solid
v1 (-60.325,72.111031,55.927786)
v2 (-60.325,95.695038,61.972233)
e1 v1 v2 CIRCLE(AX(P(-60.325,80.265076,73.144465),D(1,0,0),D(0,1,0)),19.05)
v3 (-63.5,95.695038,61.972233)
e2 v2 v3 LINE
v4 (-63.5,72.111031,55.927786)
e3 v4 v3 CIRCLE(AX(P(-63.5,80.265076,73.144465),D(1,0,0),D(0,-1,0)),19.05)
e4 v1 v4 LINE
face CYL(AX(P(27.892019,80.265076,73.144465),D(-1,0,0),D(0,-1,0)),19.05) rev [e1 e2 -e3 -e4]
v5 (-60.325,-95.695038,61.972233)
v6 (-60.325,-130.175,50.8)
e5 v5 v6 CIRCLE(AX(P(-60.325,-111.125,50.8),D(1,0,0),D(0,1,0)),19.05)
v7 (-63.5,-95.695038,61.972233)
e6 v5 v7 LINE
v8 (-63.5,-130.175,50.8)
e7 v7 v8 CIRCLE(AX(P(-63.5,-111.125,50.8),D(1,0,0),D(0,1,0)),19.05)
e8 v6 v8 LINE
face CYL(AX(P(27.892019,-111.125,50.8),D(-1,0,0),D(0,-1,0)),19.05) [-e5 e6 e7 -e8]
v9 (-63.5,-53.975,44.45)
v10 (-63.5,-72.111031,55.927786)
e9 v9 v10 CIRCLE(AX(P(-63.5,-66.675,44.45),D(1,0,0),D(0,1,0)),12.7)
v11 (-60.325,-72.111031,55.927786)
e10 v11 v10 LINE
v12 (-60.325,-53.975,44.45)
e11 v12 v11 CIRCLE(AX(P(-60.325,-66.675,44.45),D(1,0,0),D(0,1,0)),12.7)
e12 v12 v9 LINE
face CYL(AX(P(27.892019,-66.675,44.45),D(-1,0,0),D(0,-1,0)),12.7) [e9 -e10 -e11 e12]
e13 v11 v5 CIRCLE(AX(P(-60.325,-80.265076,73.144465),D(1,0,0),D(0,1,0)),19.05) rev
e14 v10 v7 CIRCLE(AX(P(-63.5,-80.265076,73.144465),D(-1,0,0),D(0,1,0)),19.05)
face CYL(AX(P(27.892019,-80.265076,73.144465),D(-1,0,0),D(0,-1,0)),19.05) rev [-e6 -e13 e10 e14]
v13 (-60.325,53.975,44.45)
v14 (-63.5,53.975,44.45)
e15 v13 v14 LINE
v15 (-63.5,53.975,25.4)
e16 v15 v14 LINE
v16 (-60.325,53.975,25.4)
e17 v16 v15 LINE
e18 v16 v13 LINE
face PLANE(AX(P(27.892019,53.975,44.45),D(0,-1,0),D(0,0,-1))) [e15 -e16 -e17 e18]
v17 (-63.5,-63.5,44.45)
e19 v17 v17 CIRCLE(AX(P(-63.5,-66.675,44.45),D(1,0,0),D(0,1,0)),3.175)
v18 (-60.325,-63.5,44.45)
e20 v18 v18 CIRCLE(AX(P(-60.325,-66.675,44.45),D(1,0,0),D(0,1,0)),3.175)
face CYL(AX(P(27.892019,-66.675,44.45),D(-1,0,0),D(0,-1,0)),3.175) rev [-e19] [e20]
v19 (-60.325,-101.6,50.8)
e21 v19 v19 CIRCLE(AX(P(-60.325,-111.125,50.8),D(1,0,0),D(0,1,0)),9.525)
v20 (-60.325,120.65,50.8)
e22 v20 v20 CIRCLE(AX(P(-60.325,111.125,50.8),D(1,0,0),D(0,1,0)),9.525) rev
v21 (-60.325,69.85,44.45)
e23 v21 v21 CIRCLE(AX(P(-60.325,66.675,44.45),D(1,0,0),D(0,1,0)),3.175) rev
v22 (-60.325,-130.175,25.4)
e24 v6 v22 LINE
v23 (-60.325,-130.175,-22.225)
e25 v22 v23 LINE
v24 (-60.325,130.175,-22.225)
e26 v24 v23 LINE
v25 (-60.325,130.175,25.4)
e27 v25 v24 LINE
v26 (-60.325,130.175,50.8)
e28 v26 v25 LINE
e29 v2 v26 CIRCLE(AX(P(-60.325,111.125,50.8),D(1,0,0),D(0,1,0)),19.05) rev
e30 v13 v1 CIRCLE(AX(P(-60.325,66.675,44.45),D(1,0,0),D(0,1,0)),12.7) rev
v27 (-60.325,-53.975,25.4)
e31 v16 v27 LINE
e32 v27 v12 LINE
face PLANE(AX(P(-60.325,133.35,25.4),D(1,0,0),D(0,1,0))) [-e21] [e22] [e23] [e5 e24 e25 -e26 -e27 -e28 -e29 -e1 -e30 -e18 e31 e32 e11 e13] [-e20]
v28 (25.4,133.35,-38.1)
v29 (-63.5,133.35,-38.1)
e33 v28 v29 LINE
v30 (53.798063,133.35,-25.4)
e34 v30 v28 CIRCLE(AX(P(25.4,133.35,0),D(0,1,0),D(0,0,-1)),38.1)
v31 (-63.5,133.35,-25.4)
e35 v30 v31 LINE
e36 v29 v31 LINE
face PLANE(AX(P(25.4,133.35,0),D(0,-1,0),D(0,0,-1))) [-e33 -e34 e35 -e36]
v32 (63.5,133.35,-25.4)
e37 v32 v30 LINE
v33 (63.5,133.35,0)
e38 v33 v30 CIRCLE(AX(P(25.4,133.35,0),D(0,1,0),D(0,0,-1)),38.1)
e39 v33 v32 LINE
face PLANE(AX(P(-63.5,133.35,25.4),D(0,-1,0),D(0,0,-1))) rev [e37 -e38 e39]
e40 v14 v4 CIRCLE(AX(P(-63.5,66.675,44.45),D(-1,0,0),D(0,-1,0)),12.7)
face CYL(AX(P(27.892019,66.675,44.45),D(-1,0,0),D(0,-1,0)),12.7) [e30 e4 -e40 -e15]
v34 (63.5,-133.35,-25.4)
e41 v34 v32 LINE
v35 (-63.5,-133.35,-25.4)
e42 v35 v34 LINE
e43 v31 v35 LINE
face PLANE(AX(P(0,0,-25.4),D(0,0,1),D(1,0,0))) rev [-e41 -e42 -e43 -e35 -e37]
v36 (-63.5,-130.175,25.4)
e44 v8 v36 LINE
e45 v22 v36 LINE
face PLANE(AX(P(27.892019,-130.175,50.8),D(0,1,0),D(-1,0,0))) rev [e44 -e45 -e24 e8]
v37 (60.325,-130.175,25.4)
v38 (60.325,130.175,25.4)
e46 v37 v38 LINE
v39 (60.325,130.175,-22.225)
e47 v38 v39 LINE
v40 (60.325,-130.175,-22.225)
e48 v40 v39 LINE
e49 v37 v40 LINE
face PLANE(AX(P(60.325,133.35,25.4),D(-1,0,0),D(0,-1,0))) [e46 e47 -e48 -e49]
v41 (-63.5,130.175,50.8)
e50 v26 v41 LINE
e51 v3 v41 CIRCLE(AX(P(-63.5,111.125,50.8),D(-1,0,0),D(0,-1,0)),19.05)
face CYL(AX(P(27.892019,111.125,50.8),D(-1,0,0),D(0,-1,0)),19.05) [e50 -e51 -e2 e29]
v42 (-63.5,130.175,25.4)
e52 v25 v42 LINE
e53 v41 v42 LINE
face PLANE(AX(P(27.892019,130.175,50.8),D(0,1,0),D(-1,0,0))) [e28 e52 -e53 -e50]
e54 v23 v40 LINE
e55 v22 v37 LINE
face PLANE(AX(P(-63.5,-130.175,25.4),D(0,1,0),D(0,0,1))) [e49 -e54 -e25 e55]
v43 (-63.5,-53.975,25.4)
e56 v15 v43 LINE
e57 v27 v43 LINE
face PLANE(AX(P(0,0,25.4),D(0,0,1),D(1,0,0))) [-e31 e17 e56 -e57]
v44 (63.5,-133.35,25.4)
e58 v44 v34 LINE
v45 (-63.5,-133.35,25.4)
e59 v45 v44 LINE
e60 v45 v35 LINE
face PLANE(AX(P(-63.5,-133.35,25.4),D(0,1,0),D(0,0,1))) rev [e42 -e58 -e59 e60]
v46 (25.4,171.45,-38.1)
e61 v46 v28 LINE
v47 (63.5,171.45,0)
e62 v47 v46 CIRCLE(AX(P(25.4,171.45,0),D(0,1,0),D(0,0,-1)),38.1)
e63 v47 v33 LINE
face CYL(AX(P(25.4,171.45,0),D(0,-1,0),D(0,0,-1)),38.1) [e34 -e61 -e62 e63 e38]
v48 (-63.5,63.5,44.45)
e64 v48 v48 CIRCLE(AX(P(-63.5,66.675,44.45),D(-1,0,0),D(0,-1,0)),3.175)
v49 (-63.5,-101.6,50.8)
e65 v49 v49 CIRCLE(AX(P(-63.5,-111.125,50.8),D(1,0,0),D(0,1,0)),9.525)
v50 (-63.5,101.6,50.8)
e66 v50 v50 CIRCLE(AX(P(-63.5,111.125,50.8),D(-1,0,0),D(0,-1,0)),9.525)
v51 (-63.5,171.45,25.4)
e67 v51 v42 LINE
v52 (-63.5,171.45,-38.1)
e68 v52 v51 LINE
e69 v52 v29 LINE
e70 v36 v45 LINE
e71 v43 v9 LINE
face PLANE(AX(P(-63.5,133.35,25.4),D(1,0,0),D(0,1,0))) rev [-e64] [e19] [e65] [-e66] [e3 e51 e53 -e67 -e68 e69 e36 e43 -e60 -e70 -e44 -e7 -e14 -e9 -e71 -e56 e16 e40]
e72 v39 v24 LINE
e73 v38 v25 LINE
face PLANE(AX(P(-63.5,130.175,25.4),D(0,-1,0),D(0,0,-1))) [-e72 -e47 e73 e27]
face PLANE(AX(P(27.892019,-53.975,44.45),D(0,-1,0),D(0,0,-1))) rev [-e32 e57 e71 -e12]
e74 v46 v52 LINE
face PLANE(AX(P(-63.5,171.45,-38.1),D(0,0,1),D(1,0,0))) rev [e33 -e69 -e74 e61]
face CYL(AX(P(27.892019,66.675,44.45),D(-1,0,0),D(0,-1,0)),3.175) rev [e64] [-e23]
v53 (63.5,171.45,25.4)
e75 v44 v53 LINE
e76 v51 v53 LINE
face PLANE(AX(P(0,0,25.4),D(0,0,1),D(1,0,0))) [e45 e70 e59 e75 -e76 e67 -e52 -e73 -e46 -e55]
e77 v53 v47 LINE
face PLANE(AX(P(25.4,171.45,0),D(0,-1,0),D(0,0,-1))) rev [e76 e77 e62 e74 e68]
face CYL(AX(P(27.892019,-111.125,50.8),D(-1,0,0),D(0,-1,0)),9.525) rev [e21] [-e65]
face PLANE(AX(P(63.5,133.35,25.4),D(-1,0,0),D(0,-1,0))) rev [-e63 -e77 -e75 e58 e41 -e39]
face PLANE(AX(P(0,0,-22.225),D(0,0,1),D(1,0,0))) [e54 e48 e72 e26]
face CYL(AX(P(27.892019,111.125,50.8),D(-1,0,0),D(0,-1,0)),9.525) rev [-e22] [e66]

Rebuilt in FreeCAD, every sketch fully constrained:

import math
import FreeCAD as App
import Part
import Sketcher
from FreeCAD import Vector
Q = App.Units.Quantity


def faces_at(feature, points):
    """Names of the faces that lie closest to the given points."""
    faces = feature.Shape.Faces
    near = lambda p: min(range(len(faces)), key=lambda i: faces[i].distToShape(Part.Vertex(*p))[0])
    return sorted({f"Face{near(p) + 1}" for p in points})


def add_polygon(sketch, points):
    """Adds a closed chain of lines whose ends are joined by coincident constraints."""
    first, n = sketch.GeometryCount, len(points)
    for a, b in zip(points, points[1:] + points[:1]):
        sketch.addGeometry(Part.LineSegment(App.Vector(*a, 0), App.Vector(*b, 0)), False)
    for i in range(n):
        sketch.addConstraint(Sketcher.Constraint("Coincident", first + i, 2, first + (i + 1) % n, 1))

doc = App.newDocument("Part")
body = doc.addObject("PartDesign::Body", "Body")

sketch1 = doc.addObject("Sketcher::SketchObject", "Sketch")
body.addObject(sketch1)
sketch1.AttachmentSupport = (doc.XY_Plane, [""])
sketch1.MapMode = "FlatFace"
add_polygon(sketch1, [(-64, 133), (-64, -133), (64, -133), (64, 133)])
sketch1.addConstraint([
    Sketcher.Constraint("Vertical", 0),
    Sketcher.Constraint("Horizontal", 1),
    Sketcher.Constraint("Vertical", 2),
    Sketcher.Constraint("Horizontal", 3),
    Sketcher.Constraint("Symmetric", 0, 2, 2, 2, -1, 1),
    Sketcher.Constraint("DistanceX", 1, 1, 1, 2, Q("5 in")),
    Sketcher.Constraint("DistanceY", 0, 2, 0, 1, Q("10.5 in")),
])
pad1 = doc.addObject("PartDesign::Pad", "Pad")
body.addObject(pad1)
pad1.Profile = sketch1
pad1.Length = Q("2 in")
pad1.Midplane = True
doc.recompute()

thickness = doc.addObject("PartDesign::Thickness", "Thickness")
body.addObject(thickness)
thickness.Base = (pad1, faces_at(pad1, [(0, 0, 25.4)]))
thickness.Value = Q("0.125 in")
thickness.Reversed = True
thickness.Join = "Intersection"

sketch2 = doc.addObject("Sketcher::SketchObject", "Sketch001")
body.addObject(sketch2)
sketch2.AttachmentSupport = (doc.YZ_Plane, [""])
sketch2.MapMode = "FlatFace"
sketch2.AttachmentOffset = App.Placement(Vector(0, 0, -2.5 * 25.4), App.Rotation())
sketch2.addGeometry([
    Part.LineSegment(Vector(130.2, 50.8, 0), Vector(130.2, 25.4, 0)),
    Part.LineSegment(Vector(130.2, 25.4, 0), Vector(54, 25.4, 0)),
    Part.LineSegment(Vector(54, 25.4, 0), Vector(54, 44.5, 0)),
    Part.ArcOfCircle(Part.Circle(Vector(66.7, 44.5, 0), Vector(0, 0, 1), 12.7), math.radians(65), math.radians(180)),
    Part.ArcOfCircle(Part.Circle(Vector(80.3, 73.1, 0), Vector(0, 0, 1), 19), math.radians(-115), math.radians(-36)),
    Part.ArcOfCircle(Part.Circle(Vector(111.1, 50.8, 0), Vector(0, 0, 1), 19.1), math.radians(0), math.radians(144)),
    Part.Circle(Vector(66.7, 44.5, 0), Vector(0, 0, 1), 3.2),
    Part.Circle(Vector(111.1, 50.8, 0), Vector(0, 0, 1), 9.5),
], False)
sketch2.addConstraint([
    Sketcher.Constraint("Coincident", 0, 2, 1, 1),
    Sketcher.Constraint("Coincident", 1, 2, 2, 1),
    Sketcher.Constraint("Tangent", 2, 2, 3, 2),
    Sketcher.Constraint("Tangent", 3, 1, 4, 1),
    Sketcher.Constraint("Tangent", 4, 2, 5, 2),
    Sketcher.Constraint("Tangent", 5, 1, 0, 1),
    Sketcher.Constraint("Vertical", 0),
    Sketcher.Constraint("Horizontal", 1),
    Sketcher.Constraint("Vertical", 2),
    Sketcher.Constraint("Coincident", 6, 3, 3, 3),
    Sketcher.Constraint("Coincident", 7, 3, 5, 3),
    Sketcher.Constraint("Equal", 4, 5),
    Sketcher.Constraint("Radius", 3, Q("0.5 in")),
    Sketcher.Constraint("Diameter", 6, Q("0.25 in")),
    Sketcher.Constraint("Diameter", 7, Q("0.75 in")),
    Sketcher.Constraint("DistanceX", 1, 2, 1, 1, Q("3 in")),
    Sketcher.Constraint("DistanceY", 0, 2, 0, 1, Q("1 in")),
    Sketcher.Constraint("Radius", 4, Q("0.75 in")),
    Sketcher.Constraint("DistanceY", -1, 1, 5, 3, Q("2 in")),
    Sketcher.Constraint("DistanceY", 2, 1, 2, 2, Q("0.75 in")),
    Sketcher.Constraint("DistanceX", -1, 1, 3, 3, Q("2.625 in")),
])
pad2 = doc.addObject("PartDesign::Pad", "Pad001")
body.addObject(pad2)
pad2.Profile = sketch2
pad2.Length = Q("0.125 in")

sketch3 = doc.addObject("Sketcher::SketchObject", "Sketch002")
body.addObject(sketch3)
sketch3.AttachmentSupport = (doc.XZ_Plane, [""])
sketch3.MapMode = "FlatFace"
sketch3.AttachmentOffset = App.Placement(Vector(0, 0, -5.25 * 25.4), App.Rotation())
sketch3.addGeometry([
    Part.LineSegment(Vector(-64, 25, 0), Vector(64, 25, 0)),
    Part.LineSegment(Vector(64, 25, 0), Vector(64, 0, 0)),
    Part.ArcOfCircle(Part.Circle(Vector(25, 0, 0), Vector(0, 0, 1), 38), math.radians(-90), math.radians(0)),
    Part.LineSegment(Vector(25, -38, 0), Vector(-64, -38, 0)),
    Part.LineSegment(Vector(-64, -38, 0), Vector(-64, 25, 0)),
], False)
sketch3.addConstraint([
    Sketcher.Constraint("Coincident", 0, 2, 1, 1),
    Sketcher.Constraint("Tangent", 1, 2, 2, 2),
    Sketcher.Constraint("Tangent", 2, 1, 3, 1),
    Sketcher.Constraint("Coincident", 3, 2, 4, 1),
    Sketcher.Constraint("Coincident", 4, 2, 0, 1),
    Sketcher.Constraint("Horizontal", 0),
    Sketcher.Constraint("Vertical", 1),
    Sketcher.Constraint("Horizontal", 3),
    Sketcher.Constraint("Vertical", 4),
    Sketcher.Constraint("PointOnObject", 2, 3, -1),
    Sketcher.Constraint("Radius", 2, Q("1.5 in")),
    Sketcher.Constraint("DistanceX", 0, 1, 0, 2, Q("5 in")),
    Sketcher.Constraint("DistanceY", 1, 2, 1, 1, Q("1 in")),
    Sketcher.Constraint("DistanceX", -1, 1, 2, 3, Q("1 in")),
])
pad3 = doc.addObject("PartDesign::Pad", "Pad002")
body.addObject(pad3)
pad3.Profile = sketch3
pad3.Length = Q("1.5 in")
pad3.Reversed = True
doc.recompute()

mirrored = doc.addObject("PartDesign::Mirrored", "Mirrored")
body.addObject(mirrored)
mirrored.Originals = [pad2]
mirrored.MirrorPlane = (doc.XZ_Plane, [""])
body.Tip = mirrored

doc.recompute()
